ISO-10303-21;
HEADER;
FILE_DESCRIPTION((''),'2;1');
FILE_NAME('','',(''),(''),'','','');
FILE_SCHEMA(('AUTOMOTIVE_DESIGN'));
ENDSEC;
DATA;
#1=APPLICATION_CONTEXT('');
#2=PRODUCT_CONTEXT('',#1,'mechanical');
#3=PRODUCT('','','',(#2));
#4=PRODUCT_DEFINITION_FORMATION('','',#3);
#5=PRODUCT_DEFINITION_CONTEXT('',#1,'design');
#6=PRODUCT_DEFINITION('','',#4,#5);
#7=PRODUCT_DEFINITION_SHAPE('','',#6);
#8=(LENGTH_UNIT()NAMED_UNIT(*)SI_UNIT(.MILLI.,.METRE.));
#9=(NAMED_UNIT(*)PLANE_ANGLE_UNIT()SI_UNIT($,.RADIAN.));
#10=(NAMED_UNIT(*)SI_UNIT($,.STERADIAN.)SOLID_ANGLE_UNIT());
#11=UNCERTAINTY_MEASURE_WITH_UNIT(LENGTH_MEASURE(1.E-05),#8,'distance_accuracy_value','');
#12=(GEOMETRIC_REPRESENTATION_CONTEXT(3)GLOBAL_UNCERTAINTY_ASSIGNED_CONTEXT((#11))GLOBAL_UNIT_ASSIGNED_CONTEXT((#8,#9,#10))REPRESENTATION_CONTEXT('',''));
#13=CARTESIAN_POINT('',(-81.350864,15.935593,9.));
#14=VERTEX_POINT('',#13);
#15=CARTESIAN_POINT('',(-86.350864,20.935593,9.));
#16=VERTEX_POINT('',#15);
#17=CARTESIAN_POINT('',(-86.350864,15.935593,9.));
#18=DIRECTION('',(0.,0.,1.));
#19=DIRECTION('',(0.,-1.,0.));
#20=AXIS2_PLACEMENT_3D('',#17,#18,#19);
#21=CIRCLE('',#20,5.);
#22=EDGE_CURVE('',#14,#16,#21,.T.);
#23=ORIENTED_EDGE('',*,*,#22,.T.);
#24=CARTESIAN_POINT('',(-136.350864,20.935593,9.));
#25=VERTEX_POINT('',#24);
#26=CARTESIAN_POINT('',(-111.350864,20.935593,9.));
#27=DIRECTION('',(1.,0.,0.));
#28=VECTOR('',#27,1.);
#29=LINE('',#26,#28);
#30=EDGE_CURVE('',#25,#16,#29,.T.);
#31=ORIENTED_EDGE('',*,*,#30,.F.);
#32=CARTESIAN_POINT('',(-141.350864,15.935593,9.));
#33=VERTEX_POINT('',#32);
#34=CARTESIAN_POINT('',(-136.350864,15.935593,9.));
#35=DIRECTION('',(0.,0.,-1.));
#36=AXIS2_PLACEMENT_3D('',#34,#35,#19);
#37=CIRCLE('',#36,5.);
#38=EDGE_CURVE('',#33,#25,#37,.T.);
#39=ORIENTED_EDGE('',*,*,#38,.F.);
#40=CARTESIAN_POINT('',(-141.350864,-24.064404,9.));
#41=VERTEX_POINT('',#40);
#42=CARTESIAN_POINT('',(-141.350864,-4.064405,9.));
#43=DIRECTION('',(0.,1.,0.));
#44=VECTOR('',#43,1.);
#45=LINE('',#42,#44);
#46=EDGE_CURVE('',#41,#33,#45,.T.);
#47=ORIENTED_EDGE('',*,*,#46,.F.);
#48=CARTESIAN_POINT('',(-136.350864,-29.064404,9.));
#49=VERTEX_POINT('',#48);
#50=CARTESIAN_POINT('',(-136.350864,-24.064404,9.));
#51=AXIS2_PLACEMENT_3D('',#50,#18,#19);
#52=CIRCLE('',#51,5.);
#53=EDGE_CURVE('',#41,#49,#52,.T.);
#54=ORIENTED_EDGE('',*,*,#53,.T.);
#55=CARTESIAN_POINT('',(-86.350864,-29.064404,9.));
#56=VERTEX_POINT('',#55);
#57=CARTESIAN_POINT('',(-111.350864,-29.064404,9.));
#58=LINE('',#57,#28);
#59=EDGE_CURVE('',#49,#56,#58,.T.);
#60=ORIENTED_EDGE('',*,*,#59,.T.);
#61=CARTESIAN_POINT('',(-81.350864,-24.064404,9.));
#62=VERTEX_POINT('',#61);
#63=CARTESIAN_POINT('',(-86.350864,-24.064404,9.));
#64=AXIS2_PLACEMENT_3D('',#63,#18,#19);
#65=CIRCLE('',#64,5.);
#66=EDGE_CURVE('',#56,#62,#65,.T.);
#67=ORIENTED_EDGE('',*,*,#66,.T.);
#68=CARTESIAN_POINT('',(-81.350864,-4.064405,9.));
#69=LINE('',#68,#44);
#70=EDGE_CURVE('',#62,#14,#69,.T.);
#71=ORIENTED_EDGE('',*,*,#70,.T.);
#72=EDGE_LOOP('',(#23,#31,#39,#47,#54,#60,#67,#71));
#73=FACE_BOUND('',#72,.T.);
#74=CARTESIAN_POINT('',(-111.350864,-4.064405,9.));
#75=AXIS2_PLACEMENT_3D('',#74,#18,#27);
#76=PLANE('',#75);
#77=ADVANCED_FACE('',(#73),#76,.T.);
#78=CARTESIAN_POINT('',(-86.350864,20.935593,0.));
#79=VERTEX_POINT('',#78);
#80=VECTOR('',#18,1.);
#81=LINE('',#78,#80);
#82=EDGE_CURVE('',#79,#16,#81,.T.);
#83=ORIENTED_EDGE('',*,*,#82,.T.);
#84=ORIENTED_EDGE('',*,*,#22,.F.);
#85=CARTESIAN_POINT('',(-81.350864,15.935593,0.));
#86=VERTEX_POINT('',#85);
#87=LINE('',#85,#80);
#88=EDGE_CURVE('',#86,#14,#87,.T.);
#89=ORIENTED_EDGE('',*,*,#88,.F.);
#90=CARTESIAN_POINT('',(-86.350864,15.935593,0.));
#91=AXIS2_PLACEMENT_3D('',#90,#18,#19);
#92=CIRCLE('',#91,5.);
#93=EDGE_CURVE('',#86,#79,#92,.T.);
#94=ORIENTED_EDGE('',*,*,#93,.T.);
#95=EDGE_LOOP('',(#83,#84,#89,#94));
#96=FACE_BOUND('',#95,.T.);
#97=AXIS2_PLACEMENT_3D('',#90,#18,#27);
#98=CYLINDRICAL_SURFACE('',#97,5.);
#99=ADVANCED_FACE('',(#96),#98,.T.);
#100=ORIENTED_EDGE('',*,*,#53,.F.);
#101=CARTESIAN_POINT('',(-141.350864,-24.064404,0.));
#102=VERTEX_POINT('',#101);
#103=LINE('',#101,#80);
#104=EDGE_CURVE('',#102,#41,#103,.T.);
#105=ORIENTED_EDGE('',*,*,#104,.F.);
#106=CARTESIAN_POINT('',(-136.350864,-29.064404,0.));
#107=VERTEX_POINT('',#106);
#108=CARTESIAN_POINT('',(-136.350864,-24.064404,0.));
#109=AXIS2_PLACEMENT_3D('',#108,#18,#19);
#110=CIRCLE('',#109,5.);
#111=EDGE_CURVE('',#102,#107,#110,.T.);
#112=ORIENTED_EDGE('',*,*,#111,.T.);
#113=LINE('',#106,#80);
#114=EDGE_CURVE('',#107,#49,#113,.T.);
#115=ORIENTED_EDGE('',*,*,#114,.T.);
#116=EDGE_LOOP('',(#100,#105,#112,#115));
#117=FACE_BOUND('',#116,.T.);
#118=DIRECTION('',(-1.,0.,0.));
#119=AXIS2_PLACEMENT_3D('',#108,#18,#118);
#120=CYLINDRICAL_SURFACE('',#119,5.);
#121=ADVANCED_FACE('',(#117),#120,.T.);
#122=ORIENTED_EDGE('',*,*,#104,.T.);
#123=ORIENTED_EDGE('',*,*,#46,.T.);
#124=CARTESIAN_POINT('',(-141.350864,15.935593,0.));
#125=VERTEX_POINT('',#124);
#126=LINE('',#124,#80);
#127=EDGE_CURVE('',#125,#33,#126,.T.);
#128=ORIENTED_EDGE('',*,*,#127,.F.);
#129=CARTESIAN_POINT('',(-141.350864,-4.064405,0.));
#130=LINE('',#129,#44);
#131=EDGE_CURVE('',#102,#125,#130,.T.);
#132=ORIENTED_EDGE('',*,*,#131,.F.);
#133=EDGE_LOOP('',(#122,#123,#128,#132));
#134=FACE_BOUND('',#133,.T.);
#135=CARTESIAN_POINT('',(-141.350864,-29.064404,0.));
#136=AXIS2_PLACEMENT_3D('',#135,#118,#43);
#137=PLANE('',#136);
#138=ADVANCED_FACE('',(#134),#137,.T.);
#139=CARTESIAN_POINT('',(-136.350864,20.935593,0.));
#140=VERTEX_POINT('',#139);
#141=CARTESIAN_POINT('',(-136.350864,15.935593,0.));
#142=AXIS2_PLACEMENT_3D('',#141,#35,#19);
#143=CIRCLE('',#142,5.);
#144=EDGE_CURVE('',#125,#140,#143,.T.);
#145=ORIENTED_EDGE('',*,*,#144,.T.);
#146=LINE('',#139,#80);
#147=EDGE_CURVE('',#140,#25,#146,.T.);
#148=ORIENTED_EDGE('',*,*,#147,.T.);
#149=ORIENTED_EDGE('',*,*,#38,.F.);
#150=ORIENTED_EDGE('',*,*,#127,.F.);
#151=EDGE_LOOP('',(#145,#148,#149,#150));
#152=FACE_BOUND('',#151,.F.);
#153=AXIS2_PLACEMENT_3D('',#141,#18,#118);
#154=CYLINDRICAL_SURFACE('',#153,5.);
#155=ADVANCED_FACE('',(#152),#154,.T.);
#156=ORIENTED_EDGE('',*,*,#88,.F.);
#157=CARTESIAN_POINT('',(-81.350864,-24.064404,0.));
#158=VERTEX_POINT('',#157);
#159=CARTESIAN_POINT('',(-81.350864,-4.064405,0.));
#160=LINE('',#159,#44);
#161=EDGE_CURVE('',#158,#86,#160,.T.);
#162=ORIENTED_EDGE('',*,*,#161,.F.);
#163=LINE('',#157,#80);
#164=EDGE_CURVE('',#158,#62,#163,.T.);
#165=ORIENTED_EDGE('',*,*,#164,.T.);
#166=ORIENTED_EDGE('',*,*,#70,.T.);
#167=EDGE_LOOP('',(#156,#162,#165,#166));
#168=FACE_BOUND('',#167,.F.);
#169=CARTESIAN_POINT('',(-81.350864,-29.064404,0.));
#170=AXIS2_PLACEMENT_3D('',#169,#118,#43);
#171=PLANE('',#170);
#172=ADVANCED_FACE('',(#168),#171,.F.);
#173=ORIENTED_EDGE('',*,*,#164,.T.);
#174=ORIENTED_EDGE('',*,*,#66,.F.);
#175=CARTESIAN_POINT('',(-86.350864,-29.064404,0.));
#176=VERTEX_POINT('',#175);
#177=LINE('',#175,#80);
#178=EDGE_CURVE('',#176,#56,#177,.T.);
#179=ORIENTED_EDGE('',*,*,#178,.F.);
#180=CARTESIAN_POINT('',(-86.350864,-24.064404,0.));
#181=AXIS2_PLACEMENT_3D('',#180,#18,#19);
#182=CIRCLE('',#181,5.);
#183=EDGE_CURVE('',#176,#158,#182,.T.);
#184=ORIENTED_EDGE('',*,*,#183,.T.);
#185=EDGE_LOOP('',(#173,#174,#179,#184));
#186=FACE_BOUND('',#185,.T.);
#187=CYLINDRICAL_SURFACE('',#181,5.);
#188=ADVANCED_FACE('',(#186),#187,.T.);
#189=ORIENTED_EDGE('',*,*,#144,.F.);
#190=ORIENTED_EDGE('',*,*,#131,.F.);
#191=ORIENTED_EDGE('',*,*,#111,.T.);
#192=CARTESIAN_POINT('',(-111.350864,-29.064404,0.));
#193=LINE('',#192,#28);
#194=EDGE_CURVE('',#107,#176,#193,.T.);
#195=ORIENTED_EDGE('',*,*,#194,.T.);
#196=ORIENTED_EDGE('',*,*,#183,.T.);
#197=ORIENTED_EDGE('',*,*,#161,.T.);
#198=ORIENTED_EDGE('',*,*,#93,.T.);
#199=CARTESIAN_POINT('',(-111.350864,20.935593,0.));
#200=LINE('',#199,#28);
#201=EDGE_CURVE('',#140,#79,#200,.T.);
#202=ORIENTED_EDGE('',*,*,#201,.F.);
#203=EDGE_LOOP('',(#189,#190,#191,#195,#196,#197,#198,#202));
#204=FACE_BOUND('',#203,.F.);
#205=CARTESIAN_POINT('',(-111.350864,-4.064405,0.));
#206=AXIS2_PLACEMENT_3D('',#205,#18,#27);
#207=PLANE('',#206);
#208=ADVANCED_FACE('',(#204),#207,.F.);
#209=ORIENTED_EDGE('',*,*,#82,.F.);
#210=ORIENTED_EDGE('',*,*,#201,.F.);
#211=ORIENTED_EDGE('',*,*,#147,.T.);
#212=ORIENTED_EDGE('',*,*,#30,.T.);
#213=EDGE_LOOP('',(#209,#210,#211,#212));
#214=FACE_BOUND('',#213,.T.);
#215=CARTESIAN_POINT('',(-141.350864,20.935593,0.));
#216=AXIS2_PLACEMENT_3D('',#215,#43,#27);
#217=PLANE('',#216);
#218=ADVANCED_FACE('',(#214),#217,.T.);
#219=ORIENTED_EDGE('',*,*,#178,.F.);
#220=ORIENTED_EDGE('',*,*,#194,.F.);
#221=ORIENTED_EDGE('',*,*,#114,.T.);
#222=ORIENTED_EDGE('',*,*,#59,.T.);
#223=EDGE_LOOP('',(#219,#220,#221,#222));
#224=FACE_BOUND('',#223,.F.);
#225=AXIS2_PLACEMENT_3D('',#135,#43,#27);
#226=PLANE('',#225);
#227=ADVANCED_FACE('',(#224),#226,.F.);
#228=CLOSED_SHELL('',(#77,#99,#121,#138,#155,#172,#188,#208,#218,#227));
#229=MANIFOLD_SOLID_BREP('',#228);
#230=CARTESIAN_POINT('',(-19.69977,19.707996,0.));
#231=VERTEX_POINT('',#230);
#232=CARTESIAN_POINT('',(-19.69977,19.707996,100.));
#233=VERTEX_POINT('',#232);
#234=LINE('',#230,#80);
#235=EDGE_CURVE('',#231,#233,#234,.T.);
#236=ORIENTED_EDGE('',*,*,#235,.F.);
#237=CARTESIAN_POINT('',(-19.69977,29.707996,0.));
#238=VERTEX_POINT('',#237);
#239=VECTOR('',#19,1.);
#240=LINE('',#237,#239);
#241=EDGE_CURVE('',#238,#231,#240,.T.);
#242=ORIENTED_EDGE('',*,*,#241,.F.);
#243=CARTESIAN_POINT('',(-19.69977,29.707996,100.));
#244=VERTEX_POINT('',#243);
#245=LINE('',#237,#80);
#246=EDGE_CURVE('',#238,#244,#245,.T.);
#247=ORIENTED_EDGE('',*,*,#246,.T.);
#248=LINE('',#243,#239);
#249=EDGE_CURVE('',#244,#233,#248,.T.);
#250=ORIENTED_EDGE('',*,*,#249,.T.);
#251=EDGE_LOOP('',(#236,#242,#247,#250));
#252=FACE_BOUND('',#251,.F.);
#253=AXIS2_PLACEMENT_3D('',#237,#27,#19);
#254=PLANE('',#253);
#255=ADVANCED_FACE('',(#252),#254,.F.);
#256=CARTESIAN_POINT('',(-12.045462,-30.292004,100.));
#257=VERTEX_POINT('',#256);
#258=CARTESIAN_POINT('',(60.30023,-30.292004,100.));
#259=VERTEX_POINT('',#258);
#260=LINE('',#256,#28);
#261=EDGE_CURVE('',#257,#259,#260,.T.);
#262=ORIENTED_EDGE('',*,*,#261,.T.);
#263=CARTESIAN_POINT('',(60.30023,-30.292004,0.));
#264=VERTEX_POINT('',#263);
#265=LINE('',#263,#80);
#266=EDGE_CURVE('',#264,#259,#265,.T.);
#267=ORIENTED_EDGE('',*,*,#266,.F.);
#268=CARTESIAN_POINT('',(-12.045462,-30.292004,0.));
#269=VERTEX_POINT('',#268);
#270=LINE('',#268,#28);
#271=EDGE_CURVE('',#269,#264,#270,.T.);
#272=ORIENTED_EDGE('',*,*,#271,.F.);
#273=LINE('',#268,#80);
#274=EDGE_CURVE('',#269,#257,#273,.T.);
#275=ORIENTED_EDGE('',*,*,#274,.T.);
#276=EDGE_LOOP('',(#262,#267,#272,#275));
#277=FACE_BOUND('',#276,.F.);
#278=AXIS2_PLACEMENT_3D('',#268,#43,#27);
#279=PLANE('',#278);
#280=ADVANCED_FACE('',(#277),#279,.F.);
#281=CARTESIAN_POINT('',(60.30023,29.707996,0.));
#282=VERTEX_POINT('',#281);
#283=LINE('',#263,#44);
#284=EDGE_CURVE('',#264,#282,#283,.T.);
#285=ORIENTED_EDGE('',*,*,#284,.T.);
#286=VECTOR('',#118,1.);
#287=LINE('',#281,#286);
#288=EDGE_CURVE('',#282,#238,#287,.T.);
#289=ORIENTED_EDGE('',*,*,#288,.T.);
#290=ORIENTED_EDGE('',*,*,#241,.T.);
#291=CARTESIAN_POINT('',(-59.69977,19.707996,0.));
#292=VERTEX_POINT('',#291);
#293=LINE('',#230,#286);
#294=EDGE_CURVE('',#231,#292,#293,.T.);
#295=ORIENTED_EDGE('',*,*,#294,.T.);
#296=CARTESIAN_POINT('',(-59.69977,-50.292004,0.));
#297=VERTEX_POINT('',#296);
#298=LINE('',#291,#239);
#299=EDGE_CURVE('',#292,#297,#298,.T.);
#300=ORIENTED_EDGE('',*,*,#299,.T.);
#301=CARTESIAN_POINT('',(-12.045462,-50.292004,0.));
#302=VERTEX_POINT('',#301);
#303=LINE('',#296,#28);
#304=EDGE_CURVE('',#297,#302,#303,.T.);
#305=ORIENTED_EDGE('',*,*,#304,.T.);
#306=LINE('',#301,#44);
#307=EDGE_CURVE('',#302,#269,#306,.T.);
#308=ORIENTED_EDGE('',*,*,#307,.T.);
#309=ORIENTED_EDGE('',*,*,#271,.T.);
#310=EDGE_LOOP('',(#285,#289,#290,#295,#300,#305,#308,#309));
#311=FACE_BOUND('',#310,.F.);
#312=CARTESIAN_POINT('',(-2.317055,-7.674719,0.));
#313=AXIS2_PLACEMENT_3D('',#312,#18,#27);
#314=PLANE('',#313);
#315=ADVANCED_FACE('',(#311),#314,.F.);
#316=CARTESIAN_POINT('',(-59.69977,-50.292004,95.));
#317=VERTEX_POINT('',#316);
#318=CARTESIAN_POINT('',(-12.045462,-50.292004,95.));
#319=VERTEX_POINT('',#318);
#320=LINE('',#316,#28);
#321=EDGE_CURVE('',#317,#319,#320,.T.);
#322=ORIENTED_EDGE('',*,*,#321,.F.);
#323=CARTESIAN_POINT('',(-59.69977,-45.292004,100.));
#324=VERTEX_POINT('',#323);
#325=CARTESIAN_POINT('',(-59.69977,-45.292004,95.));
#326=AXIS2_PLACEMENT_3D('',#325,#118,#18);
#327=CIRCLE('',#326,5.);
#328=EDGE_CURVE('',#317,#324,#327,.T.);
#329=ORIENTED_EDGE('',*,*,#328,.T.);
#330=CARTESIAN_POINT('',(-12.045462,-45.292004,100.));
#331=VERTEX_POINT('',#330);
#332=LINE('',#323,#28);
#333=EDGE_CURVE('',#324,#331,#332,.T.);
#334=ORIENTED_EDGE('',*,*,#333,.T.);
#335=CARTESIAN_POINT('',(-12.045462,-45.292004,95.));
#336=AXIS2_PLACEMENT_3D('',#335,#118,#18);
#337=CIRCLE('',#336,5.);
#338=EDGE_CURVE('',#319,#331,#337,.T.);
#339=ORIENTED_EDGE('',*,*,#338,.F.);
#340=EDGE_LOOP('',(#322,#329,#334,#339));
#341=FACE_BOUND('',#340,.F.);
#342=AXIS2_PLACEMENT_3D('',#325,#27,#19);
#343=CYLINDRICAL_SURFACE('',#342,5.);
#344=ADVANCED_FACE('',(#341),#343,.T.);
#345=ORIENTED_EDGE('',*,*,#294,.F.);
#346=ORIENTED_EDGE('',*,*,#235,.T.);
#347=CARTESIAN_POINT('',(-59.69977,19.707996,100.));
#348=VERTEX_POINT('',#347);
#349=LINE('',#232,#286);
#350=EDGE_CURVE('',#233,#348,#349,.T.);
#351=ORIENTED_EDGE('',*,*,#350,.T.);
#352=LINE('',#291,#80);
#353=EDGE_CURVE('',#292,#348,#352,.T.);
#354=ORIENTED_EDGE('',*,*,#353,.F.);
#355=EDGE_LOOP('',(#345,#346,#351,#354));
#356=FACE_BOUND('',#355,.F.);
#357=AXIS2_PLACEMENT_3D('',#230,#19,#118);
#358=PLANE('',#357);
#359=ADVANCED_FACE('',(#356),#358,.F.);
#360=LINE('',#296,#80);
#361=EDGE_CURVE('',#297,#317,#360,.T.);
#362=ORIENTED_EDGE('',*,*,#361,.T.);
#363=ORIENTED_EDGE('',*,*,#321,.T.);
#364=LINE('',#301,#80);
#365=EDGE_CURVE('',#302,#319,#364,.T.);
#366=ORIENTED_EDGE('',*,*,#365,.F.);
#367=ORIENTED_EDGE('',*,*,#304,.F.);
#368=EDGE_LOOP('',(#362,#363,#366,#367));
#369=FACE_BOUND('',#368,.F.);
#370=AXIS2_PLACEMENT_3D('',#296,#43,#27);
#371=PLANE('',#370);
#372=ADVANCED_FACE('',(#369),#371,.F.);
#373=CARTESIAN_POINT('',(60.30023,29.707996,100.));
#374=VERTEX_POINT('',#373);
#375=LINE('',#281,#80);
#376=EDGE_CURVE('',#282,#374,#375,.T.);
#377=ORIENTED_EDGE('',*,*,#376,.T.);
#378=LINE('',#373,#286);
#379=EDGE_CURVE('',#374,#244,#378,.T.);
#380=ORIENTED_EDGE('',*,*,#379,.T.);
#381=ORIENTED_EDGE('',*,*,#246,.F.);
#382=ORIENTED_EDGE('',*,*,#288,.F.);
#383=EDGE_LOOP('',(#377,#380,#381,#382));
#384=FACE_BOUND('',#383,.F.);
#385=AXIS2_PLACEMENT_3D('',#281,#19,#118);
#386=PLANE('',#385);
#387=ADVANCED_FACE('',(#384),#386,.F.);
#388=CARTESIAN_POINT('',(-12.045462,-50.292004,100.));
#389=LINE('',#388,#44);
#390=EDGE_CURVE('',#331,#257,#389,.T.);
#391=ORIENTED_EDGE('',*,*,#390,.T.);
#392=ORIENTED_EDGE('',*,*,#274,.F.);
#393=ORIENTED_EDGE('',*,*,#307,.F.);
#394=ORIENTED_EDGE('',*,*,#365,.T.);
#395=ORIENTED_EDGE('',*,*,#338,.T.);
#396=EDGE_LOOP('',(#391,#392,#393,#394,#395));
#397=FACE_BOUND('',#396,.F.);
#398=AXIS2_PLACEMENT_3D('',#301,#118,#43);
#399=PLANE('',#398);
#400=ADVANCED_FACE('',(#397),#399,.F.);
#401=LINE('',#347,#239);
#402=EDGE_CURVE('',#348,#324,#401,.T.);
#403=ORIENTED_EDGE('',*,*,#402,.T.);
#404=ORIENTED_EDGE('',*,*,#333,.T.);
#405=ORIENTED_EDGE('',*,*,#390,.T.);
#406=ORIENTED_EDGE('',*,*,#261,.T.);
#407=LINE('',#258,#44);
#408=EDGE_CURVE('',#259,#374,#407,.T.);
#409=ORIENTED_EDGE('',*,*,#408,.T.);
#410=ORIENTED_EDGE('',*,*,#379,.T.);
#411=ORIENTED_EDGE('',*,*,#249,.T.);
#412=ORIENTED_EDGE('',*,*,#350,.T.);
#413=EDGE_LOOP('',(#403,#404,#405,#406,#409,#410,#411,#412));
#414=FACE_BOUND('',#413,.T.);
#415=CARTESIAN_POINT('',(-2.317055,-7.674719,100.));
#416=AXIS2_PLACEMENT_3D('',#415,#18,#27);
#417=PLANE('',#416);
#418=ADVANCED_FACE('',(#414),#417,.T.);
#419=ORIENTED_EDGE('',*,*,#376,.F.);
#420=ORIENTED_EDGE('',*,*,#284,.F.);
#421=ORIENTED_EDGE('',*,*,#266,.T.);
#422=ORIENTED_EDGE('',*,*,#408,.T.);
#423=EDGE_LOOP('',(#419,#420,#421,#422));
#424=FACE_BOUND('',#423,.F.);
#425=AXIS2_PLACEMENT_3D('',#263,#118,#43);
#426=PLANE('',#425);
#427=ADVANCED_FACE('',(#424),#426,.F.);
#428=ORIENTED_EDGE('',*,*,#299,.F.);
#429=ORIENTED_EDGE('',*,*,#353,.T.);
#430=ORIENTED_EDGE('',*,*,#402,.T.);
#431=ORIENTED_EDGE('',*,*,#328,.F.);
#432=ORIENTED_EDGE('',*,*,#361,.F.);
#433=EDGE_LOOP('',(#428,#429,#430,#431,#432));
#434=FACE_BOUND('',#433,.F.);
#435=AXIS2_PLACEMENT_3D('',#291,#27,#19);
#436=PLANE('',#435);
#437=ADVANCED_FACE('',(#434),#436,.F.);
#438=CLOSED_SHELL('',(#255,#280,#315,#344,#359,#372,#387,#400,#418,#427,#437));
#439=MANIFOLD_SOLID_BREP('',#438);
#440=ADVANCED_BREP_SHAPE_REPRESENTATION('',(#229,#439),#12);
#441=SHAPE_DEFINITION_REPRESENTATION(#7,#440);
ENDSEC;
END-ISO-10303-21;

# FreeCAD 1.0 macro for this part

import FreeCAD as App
import Part
import Sketcher

V = App.Vector


def edges_at(feature, points):
    """Names of the edges that pass closest to the given points."""
    edges = feature.Shape.Edges
    near = lambda p: min(range(len(edges)), key=lambda i: edges[i].distToShape(Part.Vertex(*p))[0])
    return sorted({f"Edge{near(p) + 1}" for p in points})


def add_polygon(sketch, points):
    """Adds a closed chain of lines whose ends are joined by coincident constraints."""
    first, n = sketch.GeometryCount, len(points)
    for a, b in zip(points, points[1:] + points[:1]):
        sketch.addGeometry(Part.LineSegment(App.Vector(*a, 0), App.Vector(*b, 0)), False)
    for i in range(n):
        sketch.addConstraint(Sketcher.Constraint("Coincident", first + i, 2, first + (i + 1) % n, 1))

doc = App.newDocument("Part")
params = doc.addObject("Spreadsheet::Sheet", "Params")
for row, (alias, value) in enumerate([
    ("sketch1_width", "80 mm"),
    ("sketch1_width2", "40 mm"),
    ("sketch1_height", "10 mm"),
    ("sketch1_height2", "70 mm"),
    ("sketch1_height3", "20 mm"),
    ("pad1_length", "100 mm"),
    ("fillet_radius", "5 mm"),
    ("sketch2_width", "60 mm"),
    ("pad2_length", "9 mm"),
    ("fillet2_radius", "5 mm"),
], start=1):
    params.set(f"A{row}", alias)
    params.set(f"B{row}", "=" + value)
    params.setAlias(f"B{row}", alias)

body = doc.addObject("PartDesign::Body", "Body")

# Sketch on XY plane
sketch1 = body.newObject("Sketcher::SketchObject", "Sketch")
sketch1.AttachmentSupport = (doc.getObject("XY_Plane"), [""])
sketch1.MapMode = "FlatFace"
add_polygon(sketch1, [(60, 30), (-20, 30), (-20, 20), (-60, 20), (-60, -50), (-12, -50), (-12, -30), (60, -30)])  # lines 0-7
sketch1.addConstraint(Sketcher.Constraint("Horizontal", 0))
sketch1.addConstraint(Sketcher.Constraint("Vertical", 1))
sketch1.addConstraint(Sketcher.Constraint("Horizontal", 2))
sketch1.addConstraint(Sketcher.Constraint("Vertical", 3))
sketch1.addConstraint(Sketcher.Constraint("Horizontal", 4))
sketch1.addConstraint(Sketcher.Constraint("Vertical", 5))
sketch1.addConstraint(Sketcher.Constraint("Horizontal", 6))
sketch1.addConstraint(Sketcher.Constraint("Vertical", 7))
sketch1.addConstraint(Sketcher.Constraint("DistanceX", 0, 2, 0, 1, 80.0))
sketch1.addConstraint(Sketcher.Constraint("DistanceX", 2, 2, 2, 1, 40.0))
sketch1.addConstraint(Sketcher.Constraint("DistanceY", 1, 2, 1, 1, 10.0))
sketch1.addConstraint(Sketcher.Constraint("DistanceY", 3, 2, 3, 1, 70.0))
sketch1.addConstraint(Sketcher.Constraint("DistanceY", 5, 1, 5, 2, 20.0))
sketch1.addConstraint(Sketcher.Constraint("DistanceX", 6, 1, 6, 2, 72.345692))
sketch1.addConstraint(Sketcher.Constraint("DistanceX", 0, 2, -1, 1, 19.69977))
sketch1.addConstraint(Sketcher.Constraint("DistanceY", -1, 1, 0, 2, 29.707996))
sketch1.setExpression("Constraints[16]", "Params.sketch1_width")
sketch1.setExpression("Constraints[17]", "Params.sketch1_width2")
sketch1.setExpression("Constraints[18]", "Params.sketch1_height")
sketch1.setExpression("Constraints[19]", "Params.sketch1_height2")
sketch1.setExpression("Constraints[20]", "Params.sketch1_height3")
pad1 = body.newObject("PartDesign::Pad", "Pad")
pad1.Profile = sketch1
pad1.setExpression("Length", "Params.pad1_length")
doc.recompute()

fillet = body.newObject("PartDesign::Fillet", "Fillet")
fillet.Base = (pad1, edges_at(pad1, [(-35.873, -50.292, 100)]))
fillet.setExpression("Radius", "Params.fillet_radius")
body2 = doc.addObject("PartDesign::Body", "Body001")

# Sketch on XY plane
sketch2 = body2.newObject("Sketcher::SketchObject", "Sketch001")
sketch2.AttachmentSupport = (doc.getObject("XY_Plane001"), [""])
sketch2.MapMode = "FlatFace"
add_polygon(sketch2, [(-141, 21), (-141, -29), (-81, -29), (-81, 21)])  # lines 0-3
sketch2.addConstraint(Sketcher.Constraint("Vertical", 0))
sketch2.addConstraint(Sketcher.Constraint("Horizontal", 1))
sketch2.addConstraint(Sketcher.Constraint("Vertical", 2))
sketch2.addConstraint(Sketcher.Constraint("Horizontal", 3))
sketch2.addConstraint(Sketcher.Constraint("DistanceX", 1, 1, 1, 2, 60.0))
sketch2.addConstraint(Sketcher.Constraint("DistanceY", 0, 2, 0, 1, 49.999997))
sketch2.addConstraint(Sketcher.Constraint("DistanceX", 0, 2, -1, 1, 141.350864))
sketch2.addConstraint(Sketcher.Constraint("DistanceY", 0, 2, -1, 1, 29.064404))
sketch2.setExpression("Constraints[8]", "Params.sketch2_width")
pad2 = body2.newObject("PartDesign::Pad", "Pad001")
pad2.Profile = sketch2
pad2.setExpression("Length", "Params.pad2_length")
doc.recompute()

fillet2 = body2.newObject("PartDesign::Fillet", "Fillet001")
fillet2.Base = (pad2, edges_at(pad2, [
    (-141.351, 20.936, 4.5),
    (-141.351, -29.064, 4.5),
    (-81.351, -29.064, 4.5),
    (-81.351, 20.936, 4.5),
]))
fillet2.setExpression("Radius", "Params.fillet2_radius")

doc.recompute()
